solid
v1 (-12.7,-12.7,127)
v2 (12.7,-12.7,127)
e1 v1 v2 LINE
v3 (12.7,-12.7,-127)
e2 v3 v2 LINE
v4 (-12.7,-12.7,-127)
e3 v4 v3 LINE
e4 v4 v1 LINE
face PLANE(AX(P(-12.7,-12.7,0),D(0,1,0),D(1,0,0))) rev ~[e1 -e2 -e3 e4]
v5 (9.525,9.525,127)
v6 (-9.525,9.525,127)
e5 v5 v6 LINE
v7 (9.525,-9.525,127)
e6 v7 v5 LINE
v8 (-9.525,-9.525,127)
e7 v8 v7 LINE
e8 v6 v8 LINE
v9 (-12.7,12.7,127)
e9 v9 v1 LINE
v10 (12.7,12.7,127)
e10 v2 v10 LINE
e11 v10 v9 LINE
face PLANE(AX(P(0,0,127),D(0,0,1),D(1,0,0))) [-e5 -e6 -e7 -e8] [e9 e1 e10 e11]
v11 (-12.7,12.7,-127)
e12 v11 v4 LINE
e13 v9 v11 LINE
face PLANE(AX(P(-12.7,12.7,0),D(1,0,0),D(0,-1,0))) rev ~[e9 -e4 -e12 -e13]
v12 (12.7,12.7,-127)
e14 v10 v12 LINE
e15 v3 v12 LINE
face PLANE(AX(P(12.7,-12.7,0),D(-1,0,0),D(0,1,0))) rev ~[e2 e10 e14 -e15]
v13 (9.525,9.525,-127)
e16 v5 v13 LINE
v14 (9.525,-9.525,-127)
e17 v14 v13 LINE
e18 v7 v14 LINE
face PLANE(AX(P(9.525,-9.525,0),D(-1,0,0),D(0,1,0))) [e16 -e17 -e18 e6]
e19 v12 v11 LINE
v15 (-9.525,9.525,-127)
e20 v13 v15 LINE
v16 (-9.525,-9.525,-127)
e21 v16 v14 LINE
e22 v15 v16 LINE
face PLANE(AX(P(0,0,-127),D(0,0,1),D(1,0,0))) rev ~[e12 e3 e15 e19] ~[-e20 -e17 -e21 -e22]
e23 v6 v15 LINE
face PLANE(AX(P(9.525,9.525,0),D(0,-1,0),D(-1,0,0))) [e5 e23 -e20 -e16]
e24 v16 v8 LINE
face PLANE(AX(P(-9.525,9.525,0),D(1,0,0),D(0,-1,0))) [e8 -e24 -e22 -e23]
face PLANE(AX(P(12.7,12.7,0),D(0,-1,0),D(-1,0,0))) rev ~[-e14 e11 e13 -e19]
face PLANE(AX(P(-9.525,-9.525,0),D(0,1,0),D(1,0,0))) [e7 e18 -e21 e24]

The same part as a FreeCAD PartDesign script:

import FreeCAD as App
import Part
import Sketcher

V = App.Vector
Q = App.Units.Quantity

doc = App.newDocument("Part")
params = doc.addObject("Spreadsheet::Sheet", "Params")
for row, (alias, value) in enumerate([
    ("sketch1_width", "1 in"),
    ("pad1_length", "10 in"),
], start=1):
    params.set(f"A{row}", alias)
    params.set(f"B{row}", "=" + value)
    params.setAlias(f"B{row}", alias)

body = doc.addObject("PartDesign::Body", "Body")

sketch1 = doc.addObject("Sketcher::SketchObject", "Sketch")
body.addObject(sketch1)
sketch1.AttachmentSupport = (doc.XY_Plane, [""])
sketch1.MapMode = "FlatFace"
sketch1.addGeometry([
    Part.LineSegment(V(-13, 13, 0), V(-13, -13, 0)),
    Part.LineSegment(V(-13, -13, 0), V(13, -13, 0)),
    Part.LineSegment(V(13, -13, 0), V(13, 13, 0)),
    Part.LineSegment(V(13, 13, 0), V(-13, 13, 0)),
    Part.LineSegment(V(10, -10, 0), V(-10, -10, 0)),
    Part.LineSegment(V(-10, -10, 0), V(-10, 10, 0)),
    Part.LineSegment(V(-10, 10, 0), V(10, 10, 0)),
    Part.LineSegment(V(10, 10, 0), V(10, -10, 0)),
], False)
sketch1.addConstraint([
    Sketcher.Constraint("Coincident", 0, 2, 1, 1),
    Sketcher.Constraint("Coincident", 1, 2, 2, 1),
    Sketcher.Constraint("Coincident", 2, 2, 3, 1),
    Sketcher.Constraint("Coincident", 3, 2, 0, 1),
    Sketcher.Constraint("Coincident", 4, 2, 5, 1),
    Sketcher.Constraint("Coincident", 5, 2, 6, 1),
    Sketcher.Constraint("Coincident", 6, 2, 7, 1),
    Sketcher.Constraint("Coincident", 7, 2, 4, 1),
    Sketcher.Constraint("Vertical", 0),
    Sketcher.Constraint("Horizontal", 1),
    Sketcher.Constraint("Vertical", 2),
    Sketcher.Constraint("Horizontal", 3),
    Sketcher.Constraint("Horizontal", 4),
    Sketcher.Constraint("Vertical", 5),
    Sketcher.Constraint("Horizontal", 6),
    Sketcher.Constraint("Vertical", 7),
    Sketcher.Constraint("Symmetric", 0, 2, 2, 2, -1, 1),
    Sketcher.Constraint("Symmetric", 4, 2, 6, 2, -1, 1),
    Sketcher.Constraint("Equal", 3, 0),
    Sketcher.Constraint("Equal", 6, 5),
    Sketcher.Constraint("DistanceX", 1, 1, 1, 2, Q("1 in")),
    Sketcher.Constraint("DistanceX", 0, 2, 4, 2, Q("0.125 in")),
])
sketch1.setExpression("Constraints[20]", "Params.sketch1_width")
pad1 = doc.addObject("PartDesign::Pad", "Pad")
body.addObject(pad1)
pad1.Profile = sketch1
pad1.setExpression("Length", "Params.pad1_length")
pad1.Midplane = True

doc.recompute()
